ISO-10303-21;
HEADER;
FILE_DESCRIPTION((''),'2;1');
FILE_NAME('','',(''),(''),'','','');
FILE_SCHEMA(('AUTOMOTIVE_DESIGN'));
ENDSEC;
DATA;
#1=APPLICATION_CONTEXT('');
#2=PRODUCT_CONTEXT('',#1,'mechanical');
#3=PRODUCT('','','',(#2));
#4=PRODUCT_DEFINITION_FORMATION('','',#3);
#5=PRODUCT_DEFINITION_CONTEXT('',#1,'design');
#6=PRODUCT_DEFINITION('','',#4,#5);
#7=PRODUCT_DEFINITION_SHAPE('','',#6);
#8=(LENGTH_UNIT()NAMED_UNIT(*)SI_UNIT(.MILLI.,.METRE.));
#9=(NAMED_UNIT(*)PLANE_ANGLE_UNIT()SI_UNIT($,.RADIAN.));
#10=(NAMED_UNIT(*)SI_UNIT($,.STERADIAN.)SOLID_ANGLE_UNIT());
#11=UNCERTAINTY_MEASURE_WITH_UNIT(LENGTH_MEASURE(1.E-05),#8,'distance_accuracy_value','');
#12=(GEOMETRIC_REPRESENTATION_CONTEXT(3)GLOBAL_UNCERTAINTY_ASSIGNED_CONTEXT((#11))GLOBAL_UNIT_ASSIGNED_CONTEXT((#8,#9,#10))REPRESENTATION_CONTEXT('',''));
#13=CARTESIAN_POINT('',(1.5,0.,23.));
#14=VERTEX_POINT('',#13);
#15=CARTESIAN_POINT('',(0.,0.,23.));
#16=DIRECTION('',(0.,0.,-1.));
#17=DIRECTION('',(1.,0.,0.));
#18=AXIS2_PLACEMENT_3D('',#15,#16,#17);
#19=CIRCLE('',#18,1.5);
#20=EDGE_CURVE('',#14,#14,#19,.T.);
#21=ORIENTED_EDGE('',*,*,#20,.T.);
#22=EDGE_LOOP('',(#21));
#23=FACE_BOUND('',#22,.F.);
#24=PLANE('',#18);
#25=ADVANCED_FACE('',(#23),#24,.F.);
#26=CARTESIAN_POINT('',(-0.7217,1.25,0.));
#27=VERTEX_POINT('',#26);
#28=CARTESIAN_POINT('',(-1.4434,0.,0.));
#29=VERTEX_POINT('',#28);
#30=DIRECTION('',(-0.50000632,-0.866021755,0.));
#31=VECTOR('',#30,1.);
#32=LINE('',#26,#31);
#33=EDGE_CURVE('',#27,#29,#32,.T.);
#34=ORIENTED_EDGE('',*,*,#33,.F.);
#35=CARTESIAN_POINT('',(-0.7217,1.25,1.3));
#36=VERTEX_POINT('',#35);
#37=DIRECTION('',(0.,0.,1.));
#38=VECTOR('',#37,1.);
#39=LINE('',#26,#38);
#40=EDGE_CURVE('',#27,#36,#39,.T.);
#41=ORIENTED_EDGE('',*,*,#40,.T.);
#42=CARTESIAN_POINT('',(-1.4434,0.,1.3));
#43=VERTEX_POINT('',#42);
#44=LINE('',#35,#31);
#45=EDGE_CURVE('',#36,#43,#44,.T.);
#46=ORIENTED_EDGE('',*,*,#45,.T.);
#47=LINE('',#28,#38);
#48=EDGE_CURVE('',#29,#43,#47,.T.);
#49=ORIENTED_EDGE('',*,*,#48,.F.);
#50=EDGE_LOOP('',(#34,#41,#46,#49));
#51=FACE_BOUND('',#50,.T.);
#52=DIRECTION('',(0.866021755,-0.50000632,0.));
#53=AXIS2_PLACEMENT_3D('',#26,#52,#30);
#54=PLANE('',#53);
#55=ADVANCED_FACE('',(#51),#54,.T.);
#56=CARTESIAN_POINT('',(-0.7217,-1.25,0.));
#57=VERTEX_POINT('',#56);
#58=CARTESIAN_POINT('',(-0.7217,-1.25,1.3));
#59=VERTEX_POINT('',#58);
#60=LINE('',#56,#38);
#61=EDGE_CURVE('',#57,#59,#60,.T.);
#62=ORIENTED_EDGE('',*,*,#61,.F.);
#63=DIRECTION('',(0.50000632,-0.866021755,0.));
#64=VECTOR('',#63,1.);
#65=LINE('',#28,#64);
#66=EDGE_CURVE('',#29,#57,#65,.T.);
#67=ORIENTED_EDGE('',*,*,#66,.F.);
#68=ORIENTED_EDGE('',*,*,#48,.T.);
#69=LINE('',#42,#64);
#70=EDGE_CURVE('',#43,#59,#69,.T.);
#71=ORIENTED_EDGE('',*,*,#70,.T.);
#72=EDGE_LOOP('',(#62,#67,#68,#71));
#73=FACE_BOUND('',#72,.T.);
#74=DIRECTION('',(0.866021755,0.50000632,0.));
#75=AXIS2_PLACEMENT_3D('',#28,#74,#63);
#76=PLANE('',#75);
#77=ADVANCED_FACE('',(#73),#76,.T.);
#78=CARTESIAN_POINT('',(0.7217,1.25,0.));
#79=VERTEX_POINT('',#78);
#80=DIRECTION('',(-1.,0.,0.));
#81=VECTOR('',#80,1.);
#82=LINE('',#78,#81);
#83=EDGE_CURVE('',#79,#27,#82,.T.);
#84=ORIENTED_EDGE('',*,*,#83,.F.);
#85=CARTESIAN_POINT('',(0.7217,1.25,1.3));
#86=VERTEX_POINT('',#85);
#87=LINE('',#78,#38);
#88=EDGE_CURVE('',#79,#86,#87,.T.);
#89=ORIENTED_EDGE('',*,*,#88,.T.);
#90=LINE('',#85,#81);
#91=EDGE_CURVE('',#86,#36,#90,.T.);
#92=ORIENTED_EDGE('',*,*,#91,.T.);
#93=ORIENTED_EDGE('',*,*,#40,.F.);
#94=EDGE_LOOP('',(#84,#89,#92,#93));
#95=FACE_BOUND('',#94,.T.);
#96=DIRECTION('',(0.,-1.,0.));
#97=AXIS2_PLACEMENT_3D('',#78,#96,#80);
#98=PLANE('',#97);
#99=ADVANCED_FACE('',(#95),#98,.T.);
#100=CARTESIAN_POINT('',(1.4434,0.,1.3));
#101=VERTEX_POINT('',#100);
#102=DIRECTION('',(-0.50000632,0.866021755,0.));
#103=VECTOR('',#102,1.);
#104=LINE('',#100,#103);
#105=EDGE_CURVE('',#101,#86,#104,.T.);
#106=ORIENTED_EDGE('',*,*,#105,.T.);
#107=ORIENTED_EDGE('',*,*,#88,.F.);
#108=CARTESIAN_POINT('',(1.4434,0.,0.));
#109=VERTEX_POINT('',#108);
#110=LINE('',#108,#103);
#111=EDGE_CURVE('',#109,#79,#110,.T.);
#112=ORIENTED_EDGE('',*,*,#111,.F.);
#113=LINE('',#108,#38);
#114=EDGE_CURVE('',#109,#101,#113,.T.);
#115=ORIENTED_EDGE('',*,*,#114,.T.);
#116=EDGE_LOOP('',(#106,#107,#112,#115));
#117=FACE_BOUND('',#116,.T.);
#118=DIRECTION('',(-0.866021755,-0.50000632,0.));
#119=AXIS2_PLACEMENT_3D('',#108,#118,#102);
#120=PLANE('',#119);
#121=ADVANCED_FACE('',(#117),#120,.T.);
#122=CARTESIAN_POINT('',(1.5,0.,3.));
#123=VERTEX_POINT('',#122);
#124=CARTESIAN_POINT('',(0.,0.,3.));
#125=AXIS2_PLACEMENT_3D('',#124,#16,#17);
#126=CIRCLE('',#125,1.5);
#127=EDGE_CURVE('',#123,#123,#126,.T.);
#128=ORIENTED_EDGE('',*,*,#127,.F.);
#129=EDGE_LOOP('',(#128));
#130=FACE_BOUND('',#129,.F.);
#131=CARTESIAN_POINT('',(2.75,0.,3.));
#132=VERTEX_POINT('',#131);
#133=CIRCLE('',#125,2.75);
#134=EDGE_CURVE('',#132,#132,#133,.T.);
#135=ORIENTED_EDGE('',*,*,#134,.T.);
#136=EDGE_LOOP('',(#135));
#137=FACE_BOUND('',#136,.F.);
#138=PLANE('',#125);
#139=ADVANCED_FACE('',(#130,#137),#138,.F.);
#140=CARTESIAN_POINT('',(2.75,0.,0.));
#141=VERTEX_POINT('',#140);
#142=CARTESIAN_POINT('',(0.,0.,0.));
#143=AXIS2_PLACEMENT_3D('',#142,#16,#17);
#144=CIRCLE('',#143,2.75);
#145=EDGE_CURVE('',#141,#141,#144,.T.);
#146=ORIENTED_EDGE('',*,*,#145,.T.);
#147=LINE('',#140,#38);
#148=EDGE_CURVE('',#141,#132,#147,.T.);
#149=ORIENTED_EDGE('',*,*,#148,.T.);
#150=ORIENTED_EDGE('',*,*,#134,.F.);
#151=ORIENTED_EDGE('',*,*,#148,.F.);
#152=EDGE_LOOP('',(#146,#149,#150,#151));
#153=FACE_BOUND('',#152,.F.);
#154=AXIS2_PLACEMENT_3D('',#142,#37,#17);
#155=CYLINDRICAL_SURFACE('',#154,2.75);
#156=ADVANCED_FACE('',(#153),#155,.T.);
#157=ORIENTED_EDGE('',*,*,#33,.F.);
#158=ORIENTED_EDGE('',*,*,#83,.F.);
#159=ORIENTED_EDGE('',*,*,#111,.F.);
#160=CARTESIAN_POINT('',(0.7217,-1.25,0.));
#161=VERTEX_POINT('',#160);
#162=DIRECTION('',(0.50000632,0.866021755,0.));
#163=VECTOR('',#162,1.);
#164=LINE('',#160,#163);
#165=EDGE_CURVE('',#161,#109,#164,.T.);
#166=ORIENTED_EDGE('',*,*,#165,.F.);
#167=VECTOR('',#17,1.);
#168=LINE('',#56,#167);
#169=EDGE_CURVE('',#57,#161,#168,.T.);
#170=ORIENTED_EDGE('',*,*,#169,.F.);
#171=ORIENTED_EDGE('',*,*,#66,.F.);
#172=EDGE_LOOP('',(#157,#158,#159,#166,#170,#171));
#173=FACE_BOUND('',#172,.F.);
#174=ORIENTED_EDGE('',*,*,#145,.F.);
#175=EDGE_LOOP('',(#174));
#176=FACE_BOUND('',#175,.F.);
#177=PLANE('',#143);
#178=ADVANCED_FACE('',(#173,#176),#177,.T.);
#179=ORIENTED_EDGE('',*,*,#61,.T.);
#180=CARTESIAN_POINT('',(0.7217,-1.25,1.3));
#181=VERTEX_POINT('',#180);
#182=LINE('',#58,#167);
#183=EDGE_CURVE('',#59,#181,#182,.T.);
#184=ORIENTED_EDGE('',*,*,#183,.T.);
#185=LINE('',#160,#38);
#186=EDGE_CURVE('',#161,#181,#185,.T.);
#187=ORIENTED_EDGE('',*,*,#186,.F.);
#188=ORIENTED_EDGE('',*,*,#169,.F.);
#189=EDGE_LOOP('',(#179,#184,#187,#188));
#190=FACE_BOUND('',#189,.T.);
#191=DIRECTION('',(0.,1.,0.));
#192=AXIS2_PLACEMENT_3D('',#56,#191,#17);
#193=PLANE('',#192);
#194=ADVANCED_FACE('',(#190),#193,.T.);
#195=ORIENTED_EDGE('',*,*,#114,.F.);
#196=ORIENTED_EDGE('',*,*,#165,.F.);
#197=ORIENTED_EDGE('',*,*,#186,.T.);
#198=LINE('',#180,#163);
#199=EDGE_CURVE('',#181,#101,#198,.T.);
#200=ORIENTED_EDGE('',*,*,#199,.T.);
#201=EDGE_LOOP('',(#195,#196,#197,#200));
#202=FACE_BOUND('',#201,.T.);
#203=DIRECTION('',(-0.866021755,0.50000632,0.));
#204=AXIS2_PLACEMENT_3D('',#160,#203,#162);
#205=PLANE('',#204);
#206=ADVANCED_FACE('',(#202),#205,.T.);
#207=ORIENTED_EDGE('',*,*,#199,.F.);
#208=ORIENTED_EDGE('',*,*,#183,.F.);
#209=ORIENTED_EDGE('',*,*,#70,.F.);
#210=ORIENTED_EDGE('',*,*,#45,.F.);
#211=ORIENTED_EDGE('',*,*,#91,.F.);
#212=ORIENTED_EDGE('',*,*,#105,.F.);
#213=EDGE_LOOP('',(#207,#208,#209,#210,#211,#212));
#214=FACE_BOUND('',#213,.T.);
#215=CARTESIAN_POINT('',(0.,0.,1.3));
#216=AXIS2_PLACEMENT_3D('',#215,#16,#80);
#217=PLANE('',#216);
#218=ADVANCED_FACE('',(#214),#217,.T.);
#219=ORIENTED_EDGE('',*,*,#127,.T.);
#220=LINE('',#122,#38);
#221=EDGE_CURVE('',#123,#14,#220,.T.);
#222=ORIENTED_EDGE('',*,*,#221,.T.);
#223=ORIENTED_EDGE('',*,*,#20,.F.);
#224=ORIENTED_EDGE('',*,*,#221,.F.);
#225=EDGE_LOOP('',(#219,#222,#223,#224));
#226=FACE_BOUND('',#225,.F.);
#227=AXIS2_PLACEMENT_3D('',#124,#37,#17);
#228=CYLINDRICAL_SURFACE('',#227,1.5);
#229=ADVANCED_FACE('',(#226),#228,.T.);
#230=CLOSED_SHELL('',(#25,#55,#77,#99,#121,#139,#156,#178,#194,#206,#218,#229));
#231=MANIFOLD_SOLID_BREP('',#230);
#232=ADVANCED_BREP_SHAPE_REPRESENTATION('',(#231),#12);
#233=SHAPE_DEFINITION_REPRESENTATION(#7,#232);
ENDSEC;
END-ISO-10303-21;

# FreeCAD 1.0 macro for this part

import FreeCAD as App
import Part
import Sketcher
from FreeCAD import Vector
Q = App.Units.Quantity


def add_polygon(sketch, points):
    """Adds a closed chain of lines whose ends are joined by coincident constraints."""
    first, n = sketch.GeometryCount, len(points)
    for a, b in zip(points, points[1:] + points[:1]):
        sketch.addGeometry(Part.LineSegment(App.Vector(*a, 0), App.Vector(*b, 0)), False)
    for i in range(n):
        sketch.addConstraint(Sketcher.Constraint("Coincident", first + i, 2, first + (i + 1) % n, 1))

doc = App.newDocument("Part")
body = doc.addObject("PartDesign::Body", "Body")

# Sketch on XZ plane
sketch1 = doc.addObject("Sketcher::SketchObject", "Sketch")
body.addObject(sketch1)
sketch1.AttachmentSupport = (doc.XZ_Plane, [""])
sketch1.MapMode = "FlatFace"
add_polygon(sketch1, [(2.8, 0), (0, 0), (0, 23), (1.5, 23), (1.5, 3), (2.8, 3)])  # lines 0-5
sketch1.addConstraint(Sketcher.Constraint("Horizontal", 0))
sketch1.addConstraint(Sketcher.Constraint("Vertical", 1))
sketch1.addConstraint(Sketcher.Constraint("Horizontal", 2))
sketch1.addConstraint(Sketcher.Constraint("Vertical", 3))
sketch1.addConstraint(Sketcher.Constraint("Horizontal", 4))
sketch1.addConstraint(Sketcher.Constraint("Vertical", 5))
sketch1.addConstraint(Sketcher.Constraint("Coincident", 0, 2, -1, 1))
sketch1.addConstraint(Sketcher.Constraint("DistanceY", 3, 2, 3, 1, Q("20 mm")))
sketch1.addConstraint(Sketcher.Constraint("DistanceY", 5, 2, 5, 1, Q("3 mm")))
sketch1.addConstraint(Sketcher.Constraint("DistanceX", 2, 1, 2, 2, Q("1.5 mm")))
sketch1.addConstraint(Sketcher.Constraint("DistanceX", 0, 2, 0, 1, Q("2.75 mm")))
revolution = doc.addObject("PartDesign::Revolution", "Revolution")
body.addObject(revolution)
revolution.Profile = sketch1
revolution.ReferenceAxis = (sketch1, ["V_Axis"])
revolution.Angle = 360

# Sketch on XY plane
sketch2 = doc.addObject("Sketcher::SketchObject", "Sketch001")
body.addObject(sketch2)
sketch2.AttachmentSupport = (doc.XY_Plane, [""])
sketch2.MapMode = "FlatFace"
add_polygon(sketch2, [(-1.4, 0), (-0.7, 1.2), (0.7, 1.2), (1.4, 0), (0.7, -1.2), (-0.7, -1.2)])  # lines 0-5
sketch2.addConstraint(Sketcher.Constraint("Horizontal", 1))
sketch2.addConstraint(Sketcher.Constraint("Horizontal", 4))
sketch2.addConstraint(Sketcher.Constraint("Symmetric", 0, 2, 3, 2, -1, 1))
sketch2.addConstraint(Sketcher.Constraint("Symmetric", 2, 2, 5, 2, -1, 1))
sketch2.addConstraint(Sketcher.Constraint("PointOnObject", 2, 2, -1))
sketch2.addConstraint(Sketcher.Constraint("Parallel", 2, 5))
sketch2.addConstraint(Sketcher.Constraint("Vertical", 1, 2, 3, 2))
sketch2.addConstraint(Sketcher.Constraint("DistanceY", 3, 2, 1, 2, Q("2.5 mm")))
sketch2.addConstraint(Sketcher.Constraint("Angle", 0, Q("59.9996 deg")))
sketch2.addConstraint(Sketcher.Constraint("DistanceX", 1, 1, 1, 2, Q("1.4434 mm")))
pocket1 = doc.addObject("PartDesign::Pocket", "Pocket")
body.addObject(pocket1)
pocket1.Profile = sketch2
pocket1.Length = 1.3
pocket1.Reversed = True

doc.recompute()
